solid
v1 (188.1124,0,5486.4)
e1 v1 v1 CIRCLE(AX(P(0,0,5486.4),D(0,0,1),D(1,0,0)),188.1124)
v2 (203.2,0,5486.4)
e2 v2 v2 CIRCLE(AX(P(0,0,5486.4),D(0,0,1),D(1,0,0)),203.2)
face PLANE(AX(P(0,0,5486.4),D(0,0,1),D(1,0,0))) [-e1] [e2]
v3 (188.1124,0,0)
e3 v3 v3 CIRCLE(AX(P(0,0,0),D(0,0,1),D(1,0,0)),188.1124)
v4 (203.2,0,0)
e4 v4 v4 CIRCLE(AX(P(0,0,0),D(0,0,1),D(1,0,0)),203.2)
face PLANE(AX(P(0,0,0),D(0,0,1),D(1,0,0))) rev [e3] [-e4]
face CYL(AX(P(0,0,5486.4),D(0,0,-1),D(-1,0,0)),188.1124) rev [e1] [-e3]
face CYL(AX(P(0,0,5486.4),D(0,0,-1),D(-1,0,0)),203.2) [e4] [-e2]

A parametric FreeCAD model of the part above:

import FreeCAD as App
import Part
import Sketcher
Q = App.Units.Quantity

doc = App.newDocument("Part")
body = doc.addObject("PartDesign::Body", "Body")

sketch1 = body.newObject("Sketcher::SketchObject", "Sketch")
sketch1.AttachmentSupport = (doc.getObject("XY_Plane"), [""])
sketch1.MapMode = "FlatFace"
sketch1.addGeometry(Part.Circle(App.Vector(0, 0, 0), App.Vector(0, 0, 1), 203), False)
sketch1.addGeometry(Part.Circle(App.Vector(0, 0, 0), App.Vector(0, 0, 1), 188), False)
sketch1.addConstraint(Sketcher.Constraint("Coincident", 0, 3, -1, 1))
sketch1.addConstraint(Sketcher.Constraint("Coincident", 1, 3, -1, 1))
sketch1.addConstraint(Sketcher.Constraint("Diameter", 0, Q("16 in")))
sketch1.addConstraint(Sketcher.Constraint("Diameter", 1, Q("14.812 in")))
pad1 = body.newObject("PartDesign::Pad", "Pad")
pad1.Profile = sketch1
pad1.Length = Q("216 in")

doc.recompute()
